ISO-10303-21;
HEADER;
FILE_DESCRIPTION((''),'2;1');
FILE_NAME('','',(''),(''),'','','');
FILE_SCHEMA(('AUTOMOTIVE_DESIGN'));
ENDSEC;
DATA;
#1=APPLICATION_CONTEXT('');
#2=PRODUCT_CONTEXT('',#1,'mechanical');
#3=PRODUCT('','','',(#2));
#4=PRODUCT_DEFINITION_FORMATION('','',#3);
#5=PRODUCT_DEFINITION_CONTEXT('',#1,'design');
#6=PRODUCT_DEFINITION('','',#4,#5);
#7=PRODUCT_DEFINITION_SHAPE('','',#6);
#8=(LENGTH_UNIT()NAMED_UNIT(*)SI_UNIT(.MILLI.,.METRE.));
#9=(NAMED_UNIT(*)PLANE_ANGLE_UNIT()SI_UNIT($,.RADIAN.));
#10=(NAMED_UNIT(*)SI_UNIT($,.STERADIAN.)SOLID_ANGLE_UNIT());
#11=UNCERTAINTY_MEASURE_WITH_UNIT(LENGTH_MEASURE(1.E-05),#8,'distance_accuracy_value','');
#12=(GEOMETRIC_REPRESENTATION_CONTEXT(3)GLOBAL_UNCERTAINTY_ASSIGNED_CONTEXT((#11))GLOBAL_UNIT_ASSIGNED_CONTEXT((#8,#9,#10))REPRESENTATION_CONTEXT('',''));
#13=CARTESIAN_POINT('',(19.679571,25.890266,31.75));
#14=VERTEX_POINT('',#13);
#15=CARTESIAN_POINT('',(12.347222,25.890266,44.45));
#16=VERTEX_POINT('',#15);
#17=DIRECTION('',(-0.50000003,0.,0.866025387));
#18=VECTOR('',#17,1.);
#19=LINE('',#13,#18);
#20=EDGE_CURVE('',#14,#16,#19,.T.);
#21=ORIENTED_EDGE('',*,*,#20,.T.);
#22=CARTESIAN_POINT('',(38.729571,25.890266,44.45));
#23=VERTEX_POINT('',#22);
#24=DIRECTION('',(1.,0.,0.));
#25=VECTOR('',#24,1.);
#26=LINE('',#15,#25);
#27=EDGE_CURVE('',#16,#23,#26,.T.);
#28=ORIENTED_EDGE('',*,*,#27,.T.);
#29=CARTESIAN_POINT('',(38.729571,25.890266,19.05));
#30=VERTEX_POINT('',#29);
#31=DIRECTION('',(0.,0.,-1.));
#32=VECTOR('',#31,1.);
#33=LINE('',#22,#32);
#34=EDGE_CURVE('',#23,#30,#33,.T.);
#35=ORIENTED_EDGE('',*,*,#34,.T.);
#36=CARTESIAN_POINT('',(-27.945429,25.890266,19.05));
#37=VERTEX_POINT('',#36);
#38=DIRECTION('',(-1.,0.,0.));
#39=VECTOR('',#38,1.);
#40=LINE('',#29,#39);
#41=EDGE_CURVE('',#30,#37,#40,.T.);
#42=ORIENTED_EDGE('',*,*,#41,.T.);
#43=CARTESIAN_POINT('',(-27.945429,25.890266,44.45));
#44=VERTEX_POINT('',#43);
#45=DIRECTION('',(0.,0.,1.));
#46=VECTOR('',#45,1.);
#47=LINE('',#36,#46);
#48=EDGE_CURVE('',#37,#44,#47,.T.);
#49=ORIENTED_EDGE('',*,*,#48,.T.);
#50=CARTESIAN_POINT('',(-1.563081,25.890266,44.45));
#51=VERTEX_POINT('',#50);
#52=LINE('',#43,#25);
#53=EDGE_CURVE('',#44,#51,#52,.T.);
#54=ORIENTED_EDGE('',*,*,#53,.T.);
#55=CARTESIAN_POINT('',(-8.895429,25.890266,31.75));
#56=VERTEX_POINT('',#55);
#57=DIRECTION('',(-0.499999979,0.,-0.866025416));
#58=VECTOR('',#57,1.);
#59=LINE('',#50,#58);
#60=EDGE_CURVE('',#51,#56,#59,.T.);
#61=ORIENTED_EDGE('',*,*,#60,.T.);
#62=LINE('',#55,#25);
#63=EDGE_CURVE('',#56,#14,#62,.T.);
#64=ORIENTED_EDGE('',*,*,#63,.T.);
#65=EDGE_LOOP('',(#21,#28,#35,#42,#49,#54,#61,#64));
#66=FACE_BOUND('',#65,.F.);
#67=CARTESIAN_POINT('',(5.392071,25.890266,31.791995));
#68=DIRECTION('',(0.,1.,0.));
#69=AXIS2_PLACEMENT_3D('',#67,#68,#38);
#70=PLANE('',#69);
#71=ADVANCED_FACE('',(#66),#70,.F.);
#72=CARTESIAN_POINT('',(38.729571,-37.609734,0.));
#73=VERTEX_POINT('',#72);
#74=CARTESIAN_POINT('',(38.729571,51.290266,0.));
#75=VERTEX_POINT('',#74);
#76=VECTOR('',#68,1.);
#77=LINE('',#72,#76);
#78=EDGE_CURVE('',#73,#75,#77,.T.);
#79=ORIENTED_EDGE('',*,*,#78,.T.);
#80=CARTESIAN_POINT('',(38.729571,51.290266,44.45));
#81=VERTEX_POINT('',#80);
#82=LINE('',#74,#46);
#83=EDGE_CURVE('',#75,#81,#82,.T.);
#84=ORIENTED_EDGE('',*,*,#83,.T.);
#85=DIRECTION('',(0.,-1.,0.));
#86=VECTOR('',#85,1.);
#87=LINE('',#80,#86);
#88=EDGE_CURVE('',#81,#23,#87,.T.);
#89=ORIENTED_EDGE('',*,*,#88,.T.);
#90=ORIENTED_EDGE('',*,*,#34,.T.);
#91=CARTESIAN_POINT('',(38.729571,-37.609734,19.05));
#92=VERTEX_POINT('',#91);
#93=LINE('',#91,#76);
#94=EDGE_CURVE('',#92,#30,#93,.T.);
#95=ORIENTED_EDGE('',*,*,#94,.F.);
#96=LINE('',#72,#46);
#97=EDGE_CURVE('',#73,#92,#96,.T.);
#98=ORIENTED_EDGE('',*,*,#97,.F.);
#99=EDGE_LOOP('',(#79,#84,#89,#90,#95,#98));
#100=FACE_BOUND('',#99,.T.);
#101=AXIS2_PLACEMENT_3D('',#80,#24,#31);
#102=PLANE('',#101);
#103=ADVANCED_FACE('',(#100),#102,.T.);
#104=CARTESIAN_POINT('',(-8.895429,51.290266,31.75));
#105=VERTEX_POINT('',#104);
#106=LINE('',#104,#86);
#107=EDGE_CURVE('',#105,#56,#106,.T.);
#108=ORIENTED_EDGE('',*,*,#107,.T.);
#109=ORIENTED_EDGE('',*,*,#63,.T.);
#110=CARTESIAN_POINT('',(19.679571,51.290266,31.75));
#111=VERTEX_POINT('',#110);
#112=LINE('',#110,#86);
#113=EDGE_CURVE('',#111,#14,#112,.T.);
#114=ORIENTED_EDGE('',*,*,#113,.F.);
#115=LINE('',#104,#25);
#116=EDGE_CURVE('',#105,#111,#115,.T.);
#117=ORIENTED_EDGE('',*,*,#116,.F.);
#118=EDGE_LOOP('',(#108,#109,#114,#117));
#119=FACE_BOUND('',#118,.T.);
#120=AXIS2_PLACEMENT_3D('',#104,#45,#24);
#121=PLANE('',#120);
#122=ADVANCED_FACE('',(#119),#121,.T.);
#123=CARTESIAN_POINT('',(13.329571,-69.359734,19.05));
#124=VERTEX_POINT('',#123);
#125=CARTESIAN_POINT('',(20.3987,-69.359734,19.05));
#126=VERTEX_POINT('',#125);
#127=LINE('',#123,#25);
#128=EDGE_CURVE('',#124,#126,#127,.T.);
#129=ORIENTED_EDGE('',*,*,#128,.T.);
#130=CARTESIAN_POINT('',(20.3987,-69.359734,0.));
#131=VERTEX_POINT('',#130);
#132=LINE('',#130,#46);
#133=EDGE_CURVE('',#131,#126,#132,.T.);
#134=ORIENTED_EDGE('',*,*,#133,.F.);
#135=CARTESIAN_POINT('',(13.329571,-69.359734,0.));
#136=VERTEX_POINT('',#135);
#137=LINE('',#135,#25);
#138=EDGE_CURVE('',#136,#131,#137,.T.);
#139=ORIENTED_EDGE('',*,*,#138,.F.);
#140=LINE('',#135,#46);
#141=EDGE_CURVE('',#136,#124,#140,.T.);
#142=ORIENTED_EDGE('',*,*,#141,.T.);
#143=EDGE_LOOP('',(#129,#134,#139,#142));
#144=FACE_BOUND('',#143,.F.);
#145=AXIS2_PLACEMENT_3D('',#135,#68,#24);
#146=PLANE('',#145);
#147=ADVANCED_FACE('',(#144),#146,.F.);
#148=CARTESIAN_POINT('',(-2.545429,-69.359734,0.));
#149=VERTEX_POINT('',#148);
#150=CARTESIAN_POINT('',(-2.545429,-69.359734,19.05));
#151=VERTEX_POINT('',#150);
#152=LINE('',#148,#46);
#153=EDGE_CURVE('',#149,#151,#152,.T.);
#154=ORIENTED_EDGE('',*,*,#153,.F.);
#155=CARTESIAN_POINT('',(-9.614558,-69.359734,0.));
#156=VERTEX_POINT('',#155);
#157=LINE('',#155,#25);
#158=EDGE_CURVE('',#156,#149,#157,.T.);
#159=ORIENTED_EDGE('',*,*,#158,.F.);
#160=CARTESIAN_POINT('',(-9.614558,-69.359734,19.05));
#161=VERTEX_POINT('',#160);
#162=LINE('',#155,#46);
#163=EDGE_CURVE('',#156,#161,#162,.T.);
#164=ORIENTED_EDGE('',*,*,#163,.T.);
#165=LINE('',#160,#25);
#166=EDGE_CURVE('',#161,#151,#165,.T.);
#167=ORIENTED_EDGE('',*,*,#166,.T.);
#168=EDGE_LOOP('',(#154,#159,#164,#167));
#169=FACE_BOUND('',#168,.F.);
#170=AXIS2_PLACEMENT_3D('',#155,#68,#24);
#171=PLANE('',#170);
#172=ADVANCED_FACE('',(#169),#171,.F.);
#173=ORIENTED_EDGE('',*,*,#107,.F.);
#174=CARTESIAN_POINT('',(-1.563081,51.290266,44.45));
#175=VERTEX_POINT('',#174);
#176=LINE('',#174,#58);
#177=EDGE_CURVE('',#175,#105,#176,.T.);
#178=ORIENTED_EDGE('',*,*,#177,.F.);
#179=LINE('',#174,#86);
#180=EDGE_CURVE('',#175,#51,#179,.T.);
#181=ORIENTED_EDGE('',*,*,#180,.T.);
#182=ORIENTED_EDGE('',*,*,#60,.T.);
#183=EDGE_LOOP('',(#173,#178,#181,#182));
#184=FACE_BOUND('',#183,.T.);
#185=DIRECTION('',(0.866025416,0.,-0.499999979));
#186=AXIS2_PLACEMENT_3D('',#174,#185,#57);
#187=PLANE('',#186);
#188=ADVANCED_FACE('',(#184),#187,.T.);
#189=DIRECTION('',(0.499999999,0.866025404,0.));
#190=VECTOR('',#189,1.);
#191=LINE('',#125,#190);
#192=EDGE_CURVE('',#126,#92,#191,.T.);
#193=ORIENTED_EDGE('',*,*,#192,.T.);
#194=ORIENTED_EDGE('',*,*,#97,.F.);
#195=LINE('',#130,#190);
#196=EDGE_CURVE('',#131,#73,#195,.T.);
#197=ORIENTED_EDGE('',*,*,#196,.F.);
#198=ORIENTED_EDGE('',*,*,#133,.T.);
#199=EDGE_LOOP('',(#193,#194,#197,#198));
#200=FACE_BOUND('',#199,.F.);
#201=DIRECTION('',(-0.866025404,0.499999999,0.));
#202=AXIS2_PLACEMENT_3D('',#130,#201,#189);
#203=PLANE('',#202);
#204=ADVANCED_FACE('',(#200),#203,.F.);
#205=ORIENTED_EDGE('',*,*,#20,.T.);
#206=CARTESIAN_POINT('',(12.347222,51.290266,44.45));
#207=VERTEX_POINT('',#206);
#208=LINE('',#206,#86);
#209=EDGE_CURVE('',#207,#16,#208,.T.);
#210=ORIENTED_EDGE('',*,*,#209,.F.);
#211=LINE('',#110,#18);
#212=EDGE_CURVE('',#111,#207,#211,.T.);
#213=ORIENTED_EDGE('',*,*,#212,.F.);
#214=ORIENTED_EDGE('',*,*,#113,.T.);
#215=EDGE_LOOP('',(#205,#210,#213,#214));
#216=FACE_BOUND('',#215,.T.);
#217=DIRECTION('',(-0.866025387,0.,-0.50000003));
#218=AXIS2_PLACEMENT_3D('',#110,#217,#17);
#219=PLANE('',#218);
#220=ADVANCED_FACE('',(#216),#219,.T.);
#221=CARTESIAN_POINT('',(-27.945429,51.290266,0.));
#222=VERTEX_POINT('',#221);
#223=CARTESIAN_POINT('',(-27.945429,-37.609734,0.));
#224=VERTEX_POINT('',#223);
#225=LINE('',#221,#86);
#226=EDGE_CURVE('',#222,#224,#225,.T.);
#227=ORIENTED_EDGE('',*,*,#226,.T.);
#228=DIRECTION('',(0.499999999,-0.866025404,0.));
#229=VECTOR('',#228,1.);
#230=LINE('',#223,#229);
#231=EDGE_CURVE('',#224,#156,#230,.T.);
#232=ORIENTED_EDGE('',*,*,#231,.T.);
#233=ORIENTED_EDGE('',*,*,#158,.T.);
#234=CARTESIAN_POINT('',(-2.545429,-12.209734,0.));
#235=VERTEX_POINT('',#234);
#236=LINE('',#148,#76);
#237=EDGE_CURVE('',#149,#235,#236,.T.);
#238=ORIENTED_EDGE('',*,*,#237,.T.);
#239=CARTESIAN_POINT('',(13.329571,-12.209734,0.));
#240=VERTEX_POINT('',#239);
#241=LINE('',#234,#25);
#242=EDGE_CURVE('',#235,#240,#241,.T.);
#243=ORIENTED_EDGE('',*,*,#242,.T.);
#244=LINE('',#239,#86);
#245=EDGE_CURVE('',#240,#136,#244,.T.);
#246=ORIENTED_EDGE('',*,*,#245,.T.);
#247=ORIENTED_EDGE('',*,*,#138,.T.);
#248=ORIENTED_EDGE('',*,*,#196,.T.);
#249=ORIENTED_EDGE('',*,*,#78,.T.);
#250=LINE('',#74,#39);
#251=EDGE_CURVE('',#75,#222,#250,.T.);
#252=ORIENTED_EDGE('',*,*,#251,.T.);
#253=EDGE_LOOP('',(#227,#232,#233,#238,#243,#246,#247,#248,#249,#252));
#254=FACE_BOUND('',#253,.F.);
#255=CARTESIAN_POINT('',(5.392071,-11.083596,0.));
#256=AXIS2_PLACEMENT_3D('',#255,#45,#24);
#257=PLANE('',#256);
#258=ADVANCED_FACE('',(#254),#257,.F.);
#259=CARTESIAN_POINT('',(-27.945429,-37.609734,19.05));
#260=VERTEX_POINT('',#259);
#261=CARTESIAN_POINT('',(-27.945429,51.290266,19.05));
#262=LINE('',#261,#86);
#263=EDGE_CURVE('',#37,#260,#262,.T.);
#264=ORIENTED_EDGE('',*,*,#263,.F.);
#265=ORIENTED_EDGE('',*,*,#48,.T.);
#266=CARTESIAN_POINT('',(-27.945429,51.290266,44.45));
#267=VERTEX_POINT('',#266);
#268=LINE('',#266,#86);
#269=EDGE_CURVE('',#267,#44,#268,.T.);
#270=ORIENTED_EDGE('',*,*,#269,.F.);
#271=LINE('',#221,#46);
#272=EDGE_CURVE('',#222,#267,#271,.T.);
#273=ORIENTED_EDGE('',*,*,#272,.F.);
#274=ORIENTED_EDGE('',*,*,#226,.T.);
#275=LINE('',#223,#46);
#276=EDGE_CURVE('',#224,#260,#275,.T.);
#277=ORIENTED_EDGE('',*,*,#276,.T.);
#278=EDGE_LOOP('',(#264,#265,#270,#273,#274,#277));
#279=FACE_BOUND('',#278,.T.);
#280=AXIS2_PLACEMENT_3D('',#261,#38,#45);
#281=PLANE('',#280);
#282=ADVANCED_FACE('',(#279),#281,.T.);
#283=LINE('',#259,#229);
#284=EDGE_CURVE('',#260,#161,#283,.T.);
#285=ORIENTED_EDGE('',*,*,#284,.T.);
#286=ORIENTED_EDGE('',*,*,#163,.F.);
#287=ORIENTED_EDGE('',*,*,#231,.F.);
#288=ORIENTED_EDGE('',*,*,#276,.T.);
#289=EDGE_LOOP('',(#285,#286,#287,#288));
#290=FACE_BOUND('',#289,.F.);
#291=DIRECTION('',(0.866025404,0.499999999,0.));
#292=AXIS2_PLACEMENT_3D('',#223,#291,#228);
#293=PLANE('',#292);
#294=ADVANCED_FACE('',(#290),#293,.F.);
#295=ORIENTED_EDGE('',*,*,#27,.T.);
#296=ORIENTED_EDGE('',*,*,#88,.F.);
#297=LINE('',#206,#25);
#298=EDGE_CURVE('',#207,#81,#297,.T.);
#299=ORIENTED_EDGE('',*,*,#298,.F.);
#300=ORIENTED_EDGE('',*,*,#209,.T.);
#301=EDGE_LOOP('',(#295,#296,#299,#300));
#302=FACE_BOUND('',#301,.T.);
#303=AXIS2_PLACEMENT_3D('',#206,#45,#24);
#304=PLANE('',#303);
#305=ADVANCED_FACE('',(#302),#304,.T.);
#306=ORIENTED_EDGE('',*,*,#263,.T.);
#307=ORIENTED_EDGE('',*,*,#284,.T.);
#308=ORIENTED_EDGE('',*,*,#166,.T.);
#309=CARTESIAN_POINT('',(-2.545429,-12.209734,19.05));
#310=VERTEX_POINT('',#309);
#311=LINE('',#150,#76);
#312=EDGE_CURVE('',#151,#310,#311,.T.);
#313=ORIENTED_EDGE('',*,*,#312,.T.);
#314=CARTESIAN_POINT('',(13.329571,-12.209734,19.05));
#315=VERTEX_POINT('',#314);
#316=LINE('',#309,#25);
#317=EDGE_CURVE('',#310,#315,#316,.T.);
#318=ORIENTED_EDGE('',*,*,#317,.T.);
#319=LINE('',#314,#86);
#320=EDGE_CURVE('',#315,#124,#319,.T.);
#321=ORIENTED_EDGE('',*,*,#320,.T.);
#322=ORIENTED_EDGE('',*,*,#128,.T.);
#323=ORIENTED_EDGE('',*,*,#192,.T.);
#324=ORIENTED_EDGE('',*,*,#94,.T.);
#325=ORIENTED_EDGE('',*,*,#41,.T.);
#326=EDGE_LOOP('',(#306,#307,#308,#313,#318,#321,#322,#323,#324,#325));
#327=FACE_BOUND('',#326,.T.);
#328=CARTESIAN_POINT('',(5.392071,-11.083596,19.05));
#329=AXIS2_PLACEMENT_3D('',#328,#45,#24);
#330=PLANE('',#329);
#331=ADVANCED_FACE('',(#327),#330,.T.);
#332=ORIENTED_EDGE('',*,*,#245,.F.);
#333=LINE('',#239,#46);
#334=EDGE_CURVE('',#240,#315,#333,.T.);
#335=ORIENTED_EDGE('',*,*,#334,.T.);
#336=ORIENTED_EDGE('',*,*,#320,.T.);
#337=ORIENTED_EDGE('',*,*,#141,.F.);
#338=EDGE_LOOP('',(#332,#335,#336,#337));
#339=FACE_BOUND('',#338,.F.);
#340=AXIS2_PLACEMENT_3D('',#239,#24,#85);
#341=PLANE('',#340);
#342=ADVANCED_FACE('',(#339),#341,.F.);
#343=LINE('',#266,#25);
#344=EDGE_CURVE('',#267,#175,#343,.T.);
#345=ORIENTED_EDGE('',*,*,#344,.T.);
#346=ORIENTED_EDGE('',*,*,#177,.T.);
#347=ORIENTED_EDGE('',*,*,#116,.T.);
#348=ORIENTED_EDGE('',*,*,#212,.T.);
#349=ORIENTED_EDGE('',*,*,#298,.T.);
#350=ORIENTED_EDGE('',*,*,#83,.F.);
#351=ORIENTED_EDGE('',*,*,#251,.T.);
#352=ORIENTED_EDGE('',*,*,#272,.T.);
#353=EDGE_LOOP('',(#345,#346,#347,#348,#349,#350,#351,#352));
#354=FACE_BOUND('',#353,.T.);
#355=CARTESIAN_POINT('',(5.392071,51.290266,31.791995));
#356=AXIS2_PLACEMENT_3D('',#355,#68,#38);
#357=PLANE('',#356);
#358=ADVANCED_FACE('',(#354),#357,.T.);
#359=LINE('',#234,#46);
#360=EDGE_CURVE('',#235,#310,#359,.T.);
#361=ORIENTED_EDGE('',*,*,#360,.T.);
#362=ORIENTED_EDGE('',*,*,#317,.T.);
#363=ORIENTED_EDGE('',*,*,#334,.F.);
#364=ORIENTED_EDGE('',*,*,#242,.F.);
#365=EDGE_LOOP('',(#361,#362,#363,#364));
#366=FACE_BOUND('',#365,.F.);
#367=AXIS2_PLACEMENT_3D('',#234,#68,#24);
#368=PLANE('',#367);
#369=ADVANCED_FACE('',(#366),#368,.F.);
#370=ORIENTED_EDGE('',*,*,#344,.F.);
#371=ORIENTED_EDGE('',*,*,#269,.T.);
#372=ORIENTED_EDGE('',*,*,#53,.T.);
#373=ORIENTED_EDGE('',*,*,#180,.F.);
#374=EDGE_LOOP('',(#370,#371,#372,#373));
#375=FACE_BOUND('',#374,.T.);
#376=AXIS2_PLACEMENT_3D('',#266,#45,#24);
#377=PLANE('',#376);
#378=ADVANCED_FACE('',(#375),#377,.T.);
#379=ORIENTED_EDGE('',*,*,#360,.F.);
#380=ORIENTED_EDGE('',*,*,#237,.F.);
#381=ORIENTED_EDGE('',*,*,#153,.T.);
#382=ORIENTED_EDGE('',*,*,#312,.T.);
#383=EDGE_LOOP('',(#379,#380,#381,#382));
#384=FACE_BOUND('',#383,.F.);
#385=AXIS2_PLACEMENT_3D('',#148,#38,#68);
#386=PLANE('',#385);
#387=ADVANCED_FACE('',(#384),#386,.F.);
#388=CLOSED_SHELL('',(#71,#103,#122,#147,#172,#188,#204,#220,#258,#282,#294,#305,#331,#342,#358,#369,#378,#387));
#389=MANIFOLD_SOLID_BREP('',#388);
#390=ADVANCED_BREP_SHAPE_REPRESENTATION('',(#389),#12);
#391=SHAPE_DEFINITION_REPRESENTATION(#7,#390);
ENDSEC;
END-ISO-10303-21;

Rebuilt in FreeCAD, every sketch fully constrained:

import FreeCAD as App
import Part
import Sketcher

V = App.Vector
Q = App.Units.Quantity


def add_polygon(sketch, points):
    """Adds a closed chain of lines whose ends are joined by coincident constraints."""
    first, n = sketch.GeometryCount, len(points)
    for a, b in zip(points, points[1:] + points[:1]):
        sketch.addGeometry(Part.LineSegment(App.Vector(*a, 0), App.Vector(*b, 0)), False)
    for i in range(n):
        sketch.addConstraint(Sketcher.Constraint("Coincident", first + i, 2, first + (i + 1) % n, 1))

doc = App.newDocument("Part")
body = doc.addObject("PartDesign::Body", "Body")

# Sketch on XY plane
sketch1 = doc.addObject("Sketcher::SketchObject", "Sketch")
body.addObject(sketch1)
sketch1.AttachmentSupport = (doc.XY_Plane, [""])
sketch1.MapMode = "FlatFace"
add_polygon(sketch1, [(39, 51), (-28, 51), (-28, -38), (-10, -69), (-3, -69), (-3, -12), (13, -12), (13, -69), (20, -69), (39, -38)])  # lines 0-9
sketch1.addConstraint(Sketcher.Constraint("Horizontal", 0))
sketch1.addConstraint(Sketcher.Constraint("Vertical", 1))
sketch1.addConstraint(Sketcher.Constraint("Horizontal", 3))
sketch1.addConstraint(Sketcher.Constraint("Vertical", 4))
sketch1.addConstraint(Sketcher.Constraint("Horizontal", 5))
sketch1.addConstraint(Sketcher.Constraint("Vertical", 6))
sketch1.addConstraint(Sketcher.Constraint("Horizontal", 7))
sketch1.addConstraint(Sketcher.Constraint("Vertical", 9))
sketch1.addConstraint(Sketcher.Constraint("Horizontal", 3, 2, 6, 2))
sketch1.addConstraint(Sketcher.Constraint("Horizontal", 1, 2, 8, 2))
sketch1.addConstraint(Sketcher.Constraint("Equal", 3, 7))
sketch1.addConstraint(Sketcher.Constraint("Equal", 2, 8))
sketch1.addConstraint(Sketcher.Constraint("DistanceY", 1, 2, 1, 1, Q("3.5 in")))
sketch1.addConstraint(Sketcher.Constraint("Angle", 2, Q("-60 deg")))
sketch1.addConstraint(Sketcher.Constraint("DistanceX", 1, 2, 3, 2, Q("1 in")))
sketch1.addConstraint(Sketcher.Constraint("DistanceY", 1, 2, 4, 2, Q("1 in")))
sketch1.addConstraint(Sketcher.Constraint("DistanceY", 4, 1, 4, 2, Q("2.25 in")))
sketch1.addConstraint(Sketcher.Constraint("DistanceX", 0, 2, 0, 1, Q("2.625 in")))
sketch1.addConstraint(Sketcher.Constraint("DistanceX", -1, 1, 7, 2, 20.3987))
sketch1.addConstraint(Sketcher.Constraint("DistanceY", -1, 1, 0, 2, 51.290266))
pad1 = doc.addObject("PartDesign::Pad", "Pad")
body.addObject(pad1)
pad1.Profile = sketch1
pad1.Length = Q("0.75 in")

# Sketch on XZ plane
sketch2 = doc.addObject("Sketcher::SketchObject", "Sketch001")
body.addObject(sketch2)
sketch2.AttachmentSupport = (doc.XZ_Plane, [""])
sketch2.MapMode = "FlatFace"
sketch2.AttachmentOffset = App.Placement(V(0, 0, -51.290266), App.Rotation())
add_polygon(sketch2, [(39, 44), (39, 19), (-28, 19), (-28, 44), (-2, 44), (-9, 32), (20, 32), (12, 44)])  # lines 0-7
sketch2.addConstraint(Sketcher.Constraint("Vertical", 0))
sketch2.addConstraint(Sketcher.Constraint("Horizontal", 1))
sketch2.addConstraint(Sketcher.Constraint("Vertical", 2))
sketch2.addConstraint(Sketcher.Constraint("Horizontal", 3))
sketch2.addConstraint(Sketcher.Constraint("Horizontal", 5))
sketch2.addConstraint(Sketcher.Constraint("Horizontal", 7))
sketch2.addConstraint(Sketcher.Constraint("Horizontal", 3, 2, 6, 2))
sketch2.addConstraint(Sketcher.Constraint("Equal", 3, 7))
sketch2.addConstraint(Sketcher.Constraint("Equal", 4, 6))
sketch2.addConstraint(Sketcher.Constraint("DistanceY", 0, 2, 0, 1, Q("1 in")))
sketch2.addConstraint(Sketcher.Constraint("Angle", 4, Q("-119.999999 deg")))
sketch2.addConstraint(Sketcher.Constraint("DistanceY", 4, 2, 3, 2, Q("0.5 in")))
sketch2.addConstraint(Sketcher.Constraint("DistanceX", 1, 2, 1, 1, Q("2.625 in")))
sketch2.addConstraint(Sketcher.Constraint("DistanceX", 5, 1, 5, 2, Q("1.125 in")))
sketch2.addConstraint(Sketcher.Constraint("DistanceY", -1, 1, 0, 2, Q("0.75 in")))
sketch2.addConstraint(Sketcher.Constraint("DistanceX", -1, 1, 0, 2, 38.729571))
pad2 = doc.addObject("PartDesign::Pad", "Pad001")
body.addObject(pad2)
pad2.Profile = sketch2
pad2.Length = Q("1 in")

doc.recompute()
